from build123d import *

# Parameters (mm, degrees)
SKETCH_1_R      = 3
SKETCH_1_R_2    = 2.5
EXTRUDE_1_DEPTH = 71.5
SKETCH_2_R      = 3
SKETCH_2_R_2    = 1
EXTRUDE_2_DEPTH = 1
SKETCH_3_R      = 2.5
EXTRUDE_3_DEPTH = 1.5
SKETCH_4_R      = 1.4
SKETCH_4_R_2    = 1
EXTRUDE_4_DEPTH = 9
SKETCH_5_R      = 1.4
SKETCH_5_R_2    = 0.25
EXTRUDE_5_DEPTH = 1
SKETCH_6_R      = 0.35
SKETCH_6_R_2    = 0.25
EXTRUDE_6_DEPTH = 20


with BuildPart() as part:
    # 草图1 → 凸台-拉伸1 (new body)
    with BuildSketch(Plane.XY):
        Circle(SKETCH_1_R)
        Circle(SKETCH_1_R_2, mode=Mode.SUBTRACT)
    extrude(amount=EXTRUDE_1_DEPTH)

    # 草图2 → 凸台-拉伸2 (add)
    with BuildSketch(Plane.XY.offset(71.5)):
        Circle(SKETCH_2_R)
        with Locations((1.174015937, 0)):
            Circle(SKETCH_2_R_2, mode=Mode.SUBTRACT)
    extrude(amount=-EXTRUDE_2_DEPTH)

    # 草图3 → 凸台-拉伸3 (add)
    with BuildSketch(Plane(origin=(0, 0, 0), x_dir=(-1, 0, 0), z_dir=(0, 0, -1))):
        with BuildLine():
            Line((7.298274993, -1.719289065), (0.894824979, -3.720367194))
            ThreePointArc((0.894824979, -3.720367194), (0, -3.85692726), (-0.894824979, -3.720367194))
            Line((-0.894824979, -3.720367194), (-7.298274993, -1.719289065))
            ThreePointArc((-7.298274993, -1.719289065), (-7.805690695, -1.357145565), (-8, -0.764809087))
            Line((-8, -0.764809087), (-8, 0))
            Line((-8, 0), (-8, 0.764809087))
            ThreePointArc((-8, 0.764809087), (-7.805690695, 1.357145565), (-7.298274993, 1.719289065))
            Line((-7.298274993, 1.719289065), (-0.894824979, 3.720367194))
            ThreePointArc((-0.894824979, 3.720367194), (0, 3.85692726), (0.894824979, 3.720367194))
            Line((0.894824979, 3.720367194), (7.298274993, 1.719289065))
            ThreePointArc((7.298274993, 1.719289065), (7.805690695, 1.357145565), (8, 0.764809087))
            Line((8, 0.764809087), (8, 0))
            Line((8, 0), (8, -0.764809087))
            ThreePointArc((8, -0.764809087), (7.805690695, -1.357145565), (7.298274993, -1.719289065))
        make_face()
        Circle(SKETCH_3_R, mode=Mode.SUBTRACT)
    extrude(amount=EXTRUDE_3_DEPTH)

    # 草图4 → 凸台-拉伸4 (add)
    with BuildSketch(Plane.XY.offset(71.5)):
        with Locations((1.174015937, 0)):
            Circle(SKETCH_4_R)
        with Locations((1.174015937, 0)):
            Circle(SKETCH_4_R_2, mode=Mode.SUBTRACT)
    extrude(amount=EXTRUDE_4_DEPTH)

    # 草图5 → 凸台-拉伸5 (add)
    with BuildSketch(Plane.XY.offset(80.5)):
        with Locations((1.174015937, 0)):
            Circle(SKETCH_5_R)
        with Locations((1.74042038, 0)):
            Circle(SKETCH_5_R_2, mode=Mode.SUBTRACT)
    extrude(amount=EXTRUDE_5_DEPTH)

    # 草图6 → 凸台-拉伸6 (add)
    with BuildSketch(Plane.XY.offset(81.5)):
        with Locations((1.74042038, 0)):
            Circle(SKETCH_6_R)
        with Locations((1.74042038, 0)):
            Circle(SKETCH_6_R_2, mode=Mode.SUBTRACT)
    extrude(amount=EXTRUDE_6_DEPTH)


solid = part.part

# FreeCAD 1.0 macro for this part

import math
import FreeCAD as App
import Part
import Sketcher

doc = App.newDocument("Part")
body = doc.addObject("PartDesign::Body", "Body")

# Sketch on XY plane
sketch1 = body.newObject("Sketcher::SketchObject", "Sketch")
sketch1.AttachmentSupport = (doc.getObject("XY_Plane"), [""])
sketch1.MapMode = "FlatFace"
sketch1.addGeometry(Part.Circle(App.Vector(0, 0, 0), App.Vector(0, 0, 1), 3), False)
sketch1.addGeometry(Part.Circle(App.Vector(0, 0, 0), App.Vector(0, 0, 1), 2.5), False)
sketch1.addConstraint(Sketcher.Constraint("Coincident", 0, 3, -1, 1))
sketch1.addConstraint(Sketcher.Constraint("Coincident", 1, 3, -1, 1))
sketch1.addConstraint(Sketcher.Constraint("Diameter", 0, 6.0))
sketch1.addConstraint(Sketcher.Constraint("Diameter", 1, 5.0))
pad1 = body.newObject("PartDesign::Pad", "Pad")
pad1.Profile = sketch1
pad1.Length = 71.5

# Sketch on XY plane
sketch2 = body.newObject("Sketcher::SketchObject", "Sketch001")
sketch2.AttachmentSupport = (doc.getObject("XY_Plane"), [""])
sketch2.MapMode = "FlatFace"
sketch2.AttachmentOffset = App.Placement(App.Vector(0, 0, 71.5), App.Rotation())
sketch2.addGeometry(Part.Circle(App.Vector(0, 0, 0), App.Vector(0, 0, 1), 3), False)
sketch2.addGeometry(Part.Circle(App.Vector(1.174016, 0, 0), App.Vector(0, 0, 1), 1), False)
sketch2.addConstraint(Sketcher.Constraint("Coincident", 0, 3, -1, 1))
sketch2.addConstraint(Sketcher.Constraint("PointOnObject", 1, 3, -1))
sketch2.addConstraint(Sketcher.Constraint("Diameter", 0, 6.0))
sketch2.addConstraint(Sketcher.Constraint("Diameter", 1, 2.0))
sketch2.addConstraint(Sketcher.Constraint("DistanceX", -1, 1, 1, 3, 1.174016))
pad2 = body.newObject("PartDesign::Pad", "Pad001")
pad2.Profile = sketch2
pad2.Length = 1
pad2.Reversed = True

# Sketch on XY plane
sketch3 = body.newObject("Sketcher::SketchObject", "Sketch002")
sketch3.AttachmentSupport = (doc.getObject("XY_Plane"), [""])
sketch3.MapMode = "FlatFace"
sketch3.addGeometry(Part.LineSegment(App.Vector(-0.894825, -3.720367, 0), App.Vector(-7.298275, -1.719289, 0)), False)
sketch3.addGeometry(Part.ArcOfCircle(Part.Circle(App.Vector(-7, -0.764809, 0), App.Vector(0, 0, 1), 1), math.radians(-180), math.radians(-107.354025)), False)
sketch3.addGeometry(Part.LineSegment(App.Vector(-8, -0.764809, 0), App.Vector(-8, 0.764809, 0)), False)
sketch3.addGeometry(Part.ArcOfCircle(Part.Circle(App.Vector(-7, 0.764809, 0), App.Vector(0, 0, 1), 1), math.radians(107.354025), math.radians(180)), False)
sketch3.addGeometry(Part.LineSegment(App.Vector(-7.298275, 1.719289, 0), App.Vector(-0.894825, 3.720367, 0)), False)
sketch3.addGeometry(Part.ArcOfCircle(Part.Circle(App.Vector(0, 0.856927, 0), App.Vector(0, 0, 1), 3), math.radians(72.645975), math.radians(107.354025)), False)
sketch3.addGeometry(Part.LineSegment(App.Vector(0.894825, 3.720367, 0), App.Vector(7.298275, 1.719289, 0)), False)
sketch3.addGeometry(Part.ArcOfCircle(Part.Circle(App.Vector(7, 0.764809, 0), App.Vector(0, 0, 1), 1), math.radians(0), math.radians(72.645975)), False)
sketch3.addGeometry(Part.LineSegment(App.Vector(8, 0.764809, 0), App.Vector(8, -0.764809, 0)), False)
sketch3.addGeometry(Part.ArcOfCircle(Part.Circle(App.Vector(7, -0.764809, 0), App.Vector(0, 0, 1), 1), math.radians(-72.645975), math.radians(0)), False)
sketch3.addGeometry(Part.LineSegment(App.Vector(7.298275, -1.719289, 0), App.Vector(0.894825, -3.720367, 0)), False)
sketch3.addGeometry(Part.ArcOfCircle(Part.Circle(App.Vector(0, -0.856927, 0), App.Vector(0, 0, 1), 3), math.radians(-107.354025), math.radians(-72.645975)), False)
sketch3.addGeometry(Part.Circle(App.Vector(0, 0, 0), App.Vector(0, 0, 1), 2.5), False)
sketch3.addConstraint(Sketcher.Constraint("Tangent", 0, 2, 1, 2))
sketch3.addConstraint(Sketcher.Constraint("Tangent", 1, 1, 2, 1))
sketch3.addConstraint(Sketcher.Constraint("Tangent", 2, 2, 3, 2))
sketch3.addConstraint(Sketcher.Constraint("Tangent", 3, 1, 4, 1))
sketch3.addConstraint(Sketcher.Constraint("Tangent", 4, 2, 5, 2))
sketch3.addConstraint(Sketcher.Constraint("Tangent", 5, 1, 6, 1))
sketch3.addConstraint(Sketcher.Constraint("Tangent", 6, 2, 7, 2))
sketch3.addConstraint(Sketcher.Constraint("Tangent", 7, 1, 8, 1))
sketch3.addConstraint(Sketcher.Constraint("Tangent", 8, 2, 9, 2))
sketch3.addConstraint(Sketcher.Constraint("Tangent", 9, 1, 10, 1))
sketch3.addConstraint(Sketcher.Constraint("Tangent", 10, 2, 11, 2))
sketch3.addConstraint(Sketcher.Constraint("Tangent", 11, 1, 0, 1))
sketch3.addConstraint(Sketcher.Constraint("Vertical", 2))
sketch3.addConstraint(Sketcher.Constraint("Vertical", 8))
sketch3.addConstraint(Sketcher.Constraint("Coincident", 12, 3, -1, 1))
sketch3.addConstraint(Sketcher.Constraint("Equal", 1, 3))
sketch3.addConstraint(Sketcher.Constraint("Equal", 3, 7))
sketch3.addConstraint(Sketcher.Constraint("Equal", 7, 9))
sketch3.addConstraint(Sketcher.Constraint("Equal", 5, 11))
sketch3.addConstraint(Sketcher.Constraint("Symmetric", 1, 3, 7, 3, -1, 1))
sketch3.addConstraint(Sketcher.Constraint("Symmetric", 5, 3, 11, 3, -1, 1))
sketch3.addConstraint(Sketcher.Constraint("Symmetric", 4, 2, 5, 1, -2))
sketch3.addConstraint(Sketcher.Constraint("Parallel", 4, 10))
sketch3.addConstraint(Sketcher.Constraint("Diameter", 12, 5.0))
sketch3.addConstraint(Sketcher.Constraint("Radius", 1, 1.0))
sketch3.addConstraint(Sketcher.Constraint("Radius", 5, 3.0))
sketch3.addConstraint(Sketcher.Constraint("DistanceX", 1, 3, -1, 1, 7.0))
sketch3.addConstraint(Sketcher.Constraint("DistanceY", 2, 1, 2, 2, 1.529618))
sketch3.addConstraint(Sketcher.Constraint("DistanceY", 0, 2, 3, 3, 2.484098))
pad3 = body.newObject("PartDesign::Pad", "Pad002")
pad3.Profile = sketch3
pad3.Length = 1.5
pad3.Reversed = True

# Sketch on XY plane
sketch4 = body.newObject("Sketcher::SketchObject", "Sketch003")
sketch4.AttachmentSupport = (doc.getObject("XY_Plane"), [""])
sketch4.MapMode = "FlatFace"
sketch4.AttachmentOffset = App.Placement(App.Vector(0, 0, 71.5), App.Rotation())
sketch4.addGeometry(Part.Circle(App.Vector(1.174016, 0, 0), App.Vector(0, 0, 1), 1.4), False)
sketch4.addGeometry(Part.Circle(App.Vector(1.174016, 0, 0), App.Vector(0, 0, 1), 1), False)
sketch4.addConstraint(Sketcher.Constraint("Coincident", 1, 3, 0, 3))
sketch4.addConstraint(Sketcher.Constraint("PointOnObject", 0, 3, -1))
sketch4.addConstraint(Sketcher.Constraint("Diameter", 1, 2.0))
sketch4.addConstraint(Sketcher.Constraint("Diameter", 0, 2.8))
sketch4.addConstraint(Sketcher.Constraint("DistanceX", -1, 1, 0, 3, 1.174016))
pad4 = body.newObject("PartDesign::Pad", "Pad003")
pad4.Profile = sketch4
pad4.Length = 9

# Sketch on XY plane
sketch5 = body.newObject("Sketcher::SketchObject", "Sketch004")
sketch5.AttachmentSupport = (doc.getObject("XY_Plane"), [""])
sketch5.MapMode = "FlatFace"
sketch5.AttachmentOffset = App.Placement(App.Vector(0, 0, 80.5), App.Rotation())
sketch5.addGeometry(Part.Circle(App.Vector(1.174016, 0, 0), App.Vector(0, 0, 1), 1.4), False)
sketch5.addGeometry(Part.Circle(App.Vector(1.74042, 0, 0), App.Vector(0, 0, 1), 0.25), False)
sketch5.addConstraint(Sketcher.Constraint("PointOnObject", 0, 3, -1))
sketch5.addConstraint(Sketcher.Constraint("PointOnObject", 1, 3, -1))
sketch5.addConstraint(Sketcher.Constraint("Diameter", 0, 2.8))
sketch5.addConstraint(Sketcher.Constraint("Diameter", 1, 0.5))
sketch5.addConstraint(Sketcher.Constraint("DistanceX", -1, 1, 1, 3, 1.74042))
sketch5.addConstraint(Sketcher.Constraint("DistanceX", -1, 1, 0, 3, 1.174016))
pad5 = body.newObject("PartDesign::Pad", "Pad004")
pad5.Profile = sketch5
pad5.Length = 1

# Sketch on XY plane
sketch6 = body.newObject("Sketcher::SketchObject", "Sketch005")
sketch6.AttachmentSupport = (doc.getObject("XY_Plane"), [""])
sketch6.MapMode = "FlatFace"
sketch6.AttachmentOffset = App.Placement(App.Vector(0, 0, 81.5), App.Rotation())
sketch6.addGeometry(Part.Circle(App.Vector(1.74042, 0, 0), App.Vector(0, 0, 1), 0.35), False)
sketch6.addGeometry(Part.Circle(App.Vector(1.74042, 0, 0), App.Vector(0, 0, 1), 0.25), False)
sketch6.addConstraint(Sketcher.Constraint("Coincident", 1, 3, 0, 3))
sketch6.addConstraint(Sketcher.Constraint("PointOnObject", 0, 3, -1))
sketch6.addConstraint(Sketcher.Constraint("Diameter", 0, 0.7))
sketch6.addConstraint(Sketcher.Constraint("Diameter", 1, 0.5))
sketch6.addConstraint(Sketcher.Constraint("DistanceX", -1, 1, 0, 3, 1.74042))
pad6 = body.newObject("PartDesign::Pad", "Pad005")
pad6.Profile = sketch6
pad6.Length = 20

doc.recompute()
